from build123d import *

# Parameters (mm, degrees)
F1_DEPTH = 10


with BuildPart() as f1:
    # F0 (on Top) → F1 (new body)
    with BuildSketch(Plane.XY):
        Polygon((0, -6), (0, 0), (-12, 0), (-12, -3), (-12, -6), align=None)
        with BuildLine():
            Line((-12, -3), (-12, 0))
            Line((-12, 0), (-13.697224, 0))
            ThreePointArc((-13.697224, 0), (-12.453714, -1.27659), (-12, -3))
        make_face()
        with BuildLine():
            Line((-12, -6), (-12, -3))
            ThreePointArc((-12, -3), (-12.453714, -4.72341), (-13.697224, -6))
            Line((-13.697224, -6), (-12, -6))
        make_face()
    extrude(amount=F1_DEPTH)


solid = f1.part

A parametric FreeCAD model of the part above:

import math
import FreeCAD as App
import Part
import Sketcher
from FreeCAD import Vector

doc = App.newDocument("Part")
body = doc.addObject("PartDesign::Body", "Body")

sketch1 = doc.addObject("Sketcher::SketchObject", "Sketch")
body.addObject(sketch1)
sketch1.AttachmentSupport = (doc.XY_Plane, [""])
sketch1.MapMode = "FlatFace"
sketch1.addGeometry([
    Part.LineSegment(Vector(0, -6, 0), Vector(0, 0, 0)),
    Part.LineSegment(Vector(0, 0, 0), Vector(-13.7, 0, 0)),
    Part.ArcOfCircle(Part.Circle(Vector(-15.5, -3, 0), Vector(0, 0, 1), 3.5), math.radians(0), math.radians(59)),
    Part.ArcOfCircle(Part.Circle(Vector(-15.5, -3, 0), Vector(0, 0, 1), 3.5), math.radians(-59), math.radians(0)),
    Part.LineSegment(Vector(-13.7, -6, 0), Vector(0, -6, 0)),
], False)
sketch1.addConstraint([
    Sketcher.Constraint("Coincident", 0, 2, 1, 1),
    Sketcher.Constraint("Coincident", 1, 2, 2, 2),
    Sketcher.Constraint("Tangent", 2, 1, 3, 2),
    Sketcher.Constraint("Coincident", 3, 1, 4, 1),
    Sketcher.Constraint("Coincident", 4, 2, 0, 1),
    Sketcher.Constraint("Vertical", 0),
    Sketcher.Constraint("Horizontal", 1),
    Sketcher.Constraint("Horizontal", 4),
    Sketcher.Constraint("Coincident", 0, 2, -1, 1),
    Sketcher.Constraint("Equal", 2, 3),
    Sketcher.Constraint("Horizontal", 3, 3, 2, 1),
    Sketcher.Constraint("Vertical", 1, 2, 3, 1),
    Sketcher.Constraint("Radius", 2, 3.5),
    Sketcher.Constraint("DistanceY", 0, 1, 0, 2, 6.0),
    Sketcher.Constraint("DistanceX", 2, 1, -1, 1, 12.0),
])
pad1 = doc.addObject("PartDesign::Pad", "Pad")
body.addObject(pad1)
pad1.Profile = sketch1
pad1.Length = 10

doc.recompute()
